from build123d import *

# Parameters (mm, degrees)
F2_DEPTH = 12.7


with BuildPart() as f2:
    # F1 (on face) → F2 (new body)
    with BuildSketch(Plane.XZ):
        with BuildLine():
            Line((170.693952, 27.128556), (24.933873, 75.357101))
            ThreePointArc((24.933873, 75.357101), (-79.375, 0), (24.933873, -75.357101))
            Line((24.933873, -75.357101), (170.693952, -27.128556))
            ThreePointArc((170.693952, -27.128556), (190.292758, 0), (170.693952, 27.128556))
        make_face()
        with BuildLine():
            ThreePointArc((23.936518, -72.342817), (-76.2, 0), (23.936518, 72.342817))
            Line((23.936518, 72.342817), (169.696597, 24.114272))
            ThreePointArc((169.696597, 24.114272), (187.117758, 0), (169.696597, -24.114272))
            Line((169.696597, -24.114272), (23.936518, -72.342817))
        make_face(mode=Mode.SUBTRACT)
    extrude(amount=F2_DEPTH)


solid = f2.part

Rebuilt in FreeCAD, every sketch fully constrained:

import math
import FreeCAD as App
import Part
import Sketcher
from FreeCAD import Vector
Q = App.Units.Quantity

doc = App.newDocument("Part")
body = doc.addObject("PartDesign::Body", "Body")

sketch1 = body.newObject("Sketcher::SketchObject", "Sketch")
sketch1.AttachmentSupport = (doc.getObject("XZ_Plane"), [""])
sketch1.MapMode = "FlatFace"
sketch1.addGeometry([
    Part.LineSegment(Vector(171, 27, 0), Vector(25, 75, 0)),
    Part.ArcOfCircle(Part.Circle(Vector(0, 0, 0), Vector(0, 0, 1), 79), math.radians(72), math.radians(288)),
    Part.LineSegment(Vector(25, -75, 0), Vector(171, -27, 0)),
    Part.ArcOfCircle(Part.Circle(Vector(162, 0, 0), Vector(0, 0, 1), 29), math.radians(-72), math.radians(72)),
    Part.LineSegment(Vector(170, -24, 0), Vector(24, -72, 0)),
    Part.ArcOfCircle(Part.Circle(Vector(0, 0, 0), Vector(0, 0, 1), 76), math.radians(72), math.radians(288)),
    Part.LineSegment(Vector(24, 72, 0), Vector(170, 24, 0)),
    Part.ArcOfCircle(Part.Circle(Vector(162, 0, 0), Vector(0, 0, 1), 25), math.radians(-72), math.radians(72)),
], False)
sketch1.addConstraint([
    Sketcher.Constraint("Tangent", 0, 2, 1, 1),
    Sketcher.Constraint("Tangent", 1, 2, 2, 1),
    Sketcher.Constraint("Tangent", 2, 2, 3, 1),
    Sketcher.Constraint("Tangent", 3, 2, 0, 1),
    Sketcher.Constraint("Tangent", 4, 2, 5, 2),
    Sketcher.Constraint("Tangent", 5, 1, 6, 1),
    Sketcher.Constraint("Tangent", 6, 2, 7, 2),
    Sketcher.Constraint("Tangent", 7, 1, 4, 1),
    Sketcher.Constraint("Coincident", 1, 3, -1, 1),
    Sketcher.Constraint("Coincident", 5, 3, -1, 1),
    Sketcher.Constraint("Coincident", 7, 3, 3, 3),
    Sketcher.Constraint("PointOnObject", 3, 3, -1),
    Sketcher.Constraint("Parallel", 2, 4),
    Sketcher.Constraint("Radius", 5, Q("3 in")),
    Sketcher.Constraint("Radius", 7, Q("1 in")),
    Sketcher.Constraint("Radius", 1, Q("3.125 in")),
    Sketcher.Constraint("DistanceY", -1, 1, 0, 2, 75.357101),
])
pad1 = body.newObject("PartDesign::Pad", "Pad")
pad1.Profile = sketch1
pad1.Length = Q("0.5 in")

doc.recompute()
